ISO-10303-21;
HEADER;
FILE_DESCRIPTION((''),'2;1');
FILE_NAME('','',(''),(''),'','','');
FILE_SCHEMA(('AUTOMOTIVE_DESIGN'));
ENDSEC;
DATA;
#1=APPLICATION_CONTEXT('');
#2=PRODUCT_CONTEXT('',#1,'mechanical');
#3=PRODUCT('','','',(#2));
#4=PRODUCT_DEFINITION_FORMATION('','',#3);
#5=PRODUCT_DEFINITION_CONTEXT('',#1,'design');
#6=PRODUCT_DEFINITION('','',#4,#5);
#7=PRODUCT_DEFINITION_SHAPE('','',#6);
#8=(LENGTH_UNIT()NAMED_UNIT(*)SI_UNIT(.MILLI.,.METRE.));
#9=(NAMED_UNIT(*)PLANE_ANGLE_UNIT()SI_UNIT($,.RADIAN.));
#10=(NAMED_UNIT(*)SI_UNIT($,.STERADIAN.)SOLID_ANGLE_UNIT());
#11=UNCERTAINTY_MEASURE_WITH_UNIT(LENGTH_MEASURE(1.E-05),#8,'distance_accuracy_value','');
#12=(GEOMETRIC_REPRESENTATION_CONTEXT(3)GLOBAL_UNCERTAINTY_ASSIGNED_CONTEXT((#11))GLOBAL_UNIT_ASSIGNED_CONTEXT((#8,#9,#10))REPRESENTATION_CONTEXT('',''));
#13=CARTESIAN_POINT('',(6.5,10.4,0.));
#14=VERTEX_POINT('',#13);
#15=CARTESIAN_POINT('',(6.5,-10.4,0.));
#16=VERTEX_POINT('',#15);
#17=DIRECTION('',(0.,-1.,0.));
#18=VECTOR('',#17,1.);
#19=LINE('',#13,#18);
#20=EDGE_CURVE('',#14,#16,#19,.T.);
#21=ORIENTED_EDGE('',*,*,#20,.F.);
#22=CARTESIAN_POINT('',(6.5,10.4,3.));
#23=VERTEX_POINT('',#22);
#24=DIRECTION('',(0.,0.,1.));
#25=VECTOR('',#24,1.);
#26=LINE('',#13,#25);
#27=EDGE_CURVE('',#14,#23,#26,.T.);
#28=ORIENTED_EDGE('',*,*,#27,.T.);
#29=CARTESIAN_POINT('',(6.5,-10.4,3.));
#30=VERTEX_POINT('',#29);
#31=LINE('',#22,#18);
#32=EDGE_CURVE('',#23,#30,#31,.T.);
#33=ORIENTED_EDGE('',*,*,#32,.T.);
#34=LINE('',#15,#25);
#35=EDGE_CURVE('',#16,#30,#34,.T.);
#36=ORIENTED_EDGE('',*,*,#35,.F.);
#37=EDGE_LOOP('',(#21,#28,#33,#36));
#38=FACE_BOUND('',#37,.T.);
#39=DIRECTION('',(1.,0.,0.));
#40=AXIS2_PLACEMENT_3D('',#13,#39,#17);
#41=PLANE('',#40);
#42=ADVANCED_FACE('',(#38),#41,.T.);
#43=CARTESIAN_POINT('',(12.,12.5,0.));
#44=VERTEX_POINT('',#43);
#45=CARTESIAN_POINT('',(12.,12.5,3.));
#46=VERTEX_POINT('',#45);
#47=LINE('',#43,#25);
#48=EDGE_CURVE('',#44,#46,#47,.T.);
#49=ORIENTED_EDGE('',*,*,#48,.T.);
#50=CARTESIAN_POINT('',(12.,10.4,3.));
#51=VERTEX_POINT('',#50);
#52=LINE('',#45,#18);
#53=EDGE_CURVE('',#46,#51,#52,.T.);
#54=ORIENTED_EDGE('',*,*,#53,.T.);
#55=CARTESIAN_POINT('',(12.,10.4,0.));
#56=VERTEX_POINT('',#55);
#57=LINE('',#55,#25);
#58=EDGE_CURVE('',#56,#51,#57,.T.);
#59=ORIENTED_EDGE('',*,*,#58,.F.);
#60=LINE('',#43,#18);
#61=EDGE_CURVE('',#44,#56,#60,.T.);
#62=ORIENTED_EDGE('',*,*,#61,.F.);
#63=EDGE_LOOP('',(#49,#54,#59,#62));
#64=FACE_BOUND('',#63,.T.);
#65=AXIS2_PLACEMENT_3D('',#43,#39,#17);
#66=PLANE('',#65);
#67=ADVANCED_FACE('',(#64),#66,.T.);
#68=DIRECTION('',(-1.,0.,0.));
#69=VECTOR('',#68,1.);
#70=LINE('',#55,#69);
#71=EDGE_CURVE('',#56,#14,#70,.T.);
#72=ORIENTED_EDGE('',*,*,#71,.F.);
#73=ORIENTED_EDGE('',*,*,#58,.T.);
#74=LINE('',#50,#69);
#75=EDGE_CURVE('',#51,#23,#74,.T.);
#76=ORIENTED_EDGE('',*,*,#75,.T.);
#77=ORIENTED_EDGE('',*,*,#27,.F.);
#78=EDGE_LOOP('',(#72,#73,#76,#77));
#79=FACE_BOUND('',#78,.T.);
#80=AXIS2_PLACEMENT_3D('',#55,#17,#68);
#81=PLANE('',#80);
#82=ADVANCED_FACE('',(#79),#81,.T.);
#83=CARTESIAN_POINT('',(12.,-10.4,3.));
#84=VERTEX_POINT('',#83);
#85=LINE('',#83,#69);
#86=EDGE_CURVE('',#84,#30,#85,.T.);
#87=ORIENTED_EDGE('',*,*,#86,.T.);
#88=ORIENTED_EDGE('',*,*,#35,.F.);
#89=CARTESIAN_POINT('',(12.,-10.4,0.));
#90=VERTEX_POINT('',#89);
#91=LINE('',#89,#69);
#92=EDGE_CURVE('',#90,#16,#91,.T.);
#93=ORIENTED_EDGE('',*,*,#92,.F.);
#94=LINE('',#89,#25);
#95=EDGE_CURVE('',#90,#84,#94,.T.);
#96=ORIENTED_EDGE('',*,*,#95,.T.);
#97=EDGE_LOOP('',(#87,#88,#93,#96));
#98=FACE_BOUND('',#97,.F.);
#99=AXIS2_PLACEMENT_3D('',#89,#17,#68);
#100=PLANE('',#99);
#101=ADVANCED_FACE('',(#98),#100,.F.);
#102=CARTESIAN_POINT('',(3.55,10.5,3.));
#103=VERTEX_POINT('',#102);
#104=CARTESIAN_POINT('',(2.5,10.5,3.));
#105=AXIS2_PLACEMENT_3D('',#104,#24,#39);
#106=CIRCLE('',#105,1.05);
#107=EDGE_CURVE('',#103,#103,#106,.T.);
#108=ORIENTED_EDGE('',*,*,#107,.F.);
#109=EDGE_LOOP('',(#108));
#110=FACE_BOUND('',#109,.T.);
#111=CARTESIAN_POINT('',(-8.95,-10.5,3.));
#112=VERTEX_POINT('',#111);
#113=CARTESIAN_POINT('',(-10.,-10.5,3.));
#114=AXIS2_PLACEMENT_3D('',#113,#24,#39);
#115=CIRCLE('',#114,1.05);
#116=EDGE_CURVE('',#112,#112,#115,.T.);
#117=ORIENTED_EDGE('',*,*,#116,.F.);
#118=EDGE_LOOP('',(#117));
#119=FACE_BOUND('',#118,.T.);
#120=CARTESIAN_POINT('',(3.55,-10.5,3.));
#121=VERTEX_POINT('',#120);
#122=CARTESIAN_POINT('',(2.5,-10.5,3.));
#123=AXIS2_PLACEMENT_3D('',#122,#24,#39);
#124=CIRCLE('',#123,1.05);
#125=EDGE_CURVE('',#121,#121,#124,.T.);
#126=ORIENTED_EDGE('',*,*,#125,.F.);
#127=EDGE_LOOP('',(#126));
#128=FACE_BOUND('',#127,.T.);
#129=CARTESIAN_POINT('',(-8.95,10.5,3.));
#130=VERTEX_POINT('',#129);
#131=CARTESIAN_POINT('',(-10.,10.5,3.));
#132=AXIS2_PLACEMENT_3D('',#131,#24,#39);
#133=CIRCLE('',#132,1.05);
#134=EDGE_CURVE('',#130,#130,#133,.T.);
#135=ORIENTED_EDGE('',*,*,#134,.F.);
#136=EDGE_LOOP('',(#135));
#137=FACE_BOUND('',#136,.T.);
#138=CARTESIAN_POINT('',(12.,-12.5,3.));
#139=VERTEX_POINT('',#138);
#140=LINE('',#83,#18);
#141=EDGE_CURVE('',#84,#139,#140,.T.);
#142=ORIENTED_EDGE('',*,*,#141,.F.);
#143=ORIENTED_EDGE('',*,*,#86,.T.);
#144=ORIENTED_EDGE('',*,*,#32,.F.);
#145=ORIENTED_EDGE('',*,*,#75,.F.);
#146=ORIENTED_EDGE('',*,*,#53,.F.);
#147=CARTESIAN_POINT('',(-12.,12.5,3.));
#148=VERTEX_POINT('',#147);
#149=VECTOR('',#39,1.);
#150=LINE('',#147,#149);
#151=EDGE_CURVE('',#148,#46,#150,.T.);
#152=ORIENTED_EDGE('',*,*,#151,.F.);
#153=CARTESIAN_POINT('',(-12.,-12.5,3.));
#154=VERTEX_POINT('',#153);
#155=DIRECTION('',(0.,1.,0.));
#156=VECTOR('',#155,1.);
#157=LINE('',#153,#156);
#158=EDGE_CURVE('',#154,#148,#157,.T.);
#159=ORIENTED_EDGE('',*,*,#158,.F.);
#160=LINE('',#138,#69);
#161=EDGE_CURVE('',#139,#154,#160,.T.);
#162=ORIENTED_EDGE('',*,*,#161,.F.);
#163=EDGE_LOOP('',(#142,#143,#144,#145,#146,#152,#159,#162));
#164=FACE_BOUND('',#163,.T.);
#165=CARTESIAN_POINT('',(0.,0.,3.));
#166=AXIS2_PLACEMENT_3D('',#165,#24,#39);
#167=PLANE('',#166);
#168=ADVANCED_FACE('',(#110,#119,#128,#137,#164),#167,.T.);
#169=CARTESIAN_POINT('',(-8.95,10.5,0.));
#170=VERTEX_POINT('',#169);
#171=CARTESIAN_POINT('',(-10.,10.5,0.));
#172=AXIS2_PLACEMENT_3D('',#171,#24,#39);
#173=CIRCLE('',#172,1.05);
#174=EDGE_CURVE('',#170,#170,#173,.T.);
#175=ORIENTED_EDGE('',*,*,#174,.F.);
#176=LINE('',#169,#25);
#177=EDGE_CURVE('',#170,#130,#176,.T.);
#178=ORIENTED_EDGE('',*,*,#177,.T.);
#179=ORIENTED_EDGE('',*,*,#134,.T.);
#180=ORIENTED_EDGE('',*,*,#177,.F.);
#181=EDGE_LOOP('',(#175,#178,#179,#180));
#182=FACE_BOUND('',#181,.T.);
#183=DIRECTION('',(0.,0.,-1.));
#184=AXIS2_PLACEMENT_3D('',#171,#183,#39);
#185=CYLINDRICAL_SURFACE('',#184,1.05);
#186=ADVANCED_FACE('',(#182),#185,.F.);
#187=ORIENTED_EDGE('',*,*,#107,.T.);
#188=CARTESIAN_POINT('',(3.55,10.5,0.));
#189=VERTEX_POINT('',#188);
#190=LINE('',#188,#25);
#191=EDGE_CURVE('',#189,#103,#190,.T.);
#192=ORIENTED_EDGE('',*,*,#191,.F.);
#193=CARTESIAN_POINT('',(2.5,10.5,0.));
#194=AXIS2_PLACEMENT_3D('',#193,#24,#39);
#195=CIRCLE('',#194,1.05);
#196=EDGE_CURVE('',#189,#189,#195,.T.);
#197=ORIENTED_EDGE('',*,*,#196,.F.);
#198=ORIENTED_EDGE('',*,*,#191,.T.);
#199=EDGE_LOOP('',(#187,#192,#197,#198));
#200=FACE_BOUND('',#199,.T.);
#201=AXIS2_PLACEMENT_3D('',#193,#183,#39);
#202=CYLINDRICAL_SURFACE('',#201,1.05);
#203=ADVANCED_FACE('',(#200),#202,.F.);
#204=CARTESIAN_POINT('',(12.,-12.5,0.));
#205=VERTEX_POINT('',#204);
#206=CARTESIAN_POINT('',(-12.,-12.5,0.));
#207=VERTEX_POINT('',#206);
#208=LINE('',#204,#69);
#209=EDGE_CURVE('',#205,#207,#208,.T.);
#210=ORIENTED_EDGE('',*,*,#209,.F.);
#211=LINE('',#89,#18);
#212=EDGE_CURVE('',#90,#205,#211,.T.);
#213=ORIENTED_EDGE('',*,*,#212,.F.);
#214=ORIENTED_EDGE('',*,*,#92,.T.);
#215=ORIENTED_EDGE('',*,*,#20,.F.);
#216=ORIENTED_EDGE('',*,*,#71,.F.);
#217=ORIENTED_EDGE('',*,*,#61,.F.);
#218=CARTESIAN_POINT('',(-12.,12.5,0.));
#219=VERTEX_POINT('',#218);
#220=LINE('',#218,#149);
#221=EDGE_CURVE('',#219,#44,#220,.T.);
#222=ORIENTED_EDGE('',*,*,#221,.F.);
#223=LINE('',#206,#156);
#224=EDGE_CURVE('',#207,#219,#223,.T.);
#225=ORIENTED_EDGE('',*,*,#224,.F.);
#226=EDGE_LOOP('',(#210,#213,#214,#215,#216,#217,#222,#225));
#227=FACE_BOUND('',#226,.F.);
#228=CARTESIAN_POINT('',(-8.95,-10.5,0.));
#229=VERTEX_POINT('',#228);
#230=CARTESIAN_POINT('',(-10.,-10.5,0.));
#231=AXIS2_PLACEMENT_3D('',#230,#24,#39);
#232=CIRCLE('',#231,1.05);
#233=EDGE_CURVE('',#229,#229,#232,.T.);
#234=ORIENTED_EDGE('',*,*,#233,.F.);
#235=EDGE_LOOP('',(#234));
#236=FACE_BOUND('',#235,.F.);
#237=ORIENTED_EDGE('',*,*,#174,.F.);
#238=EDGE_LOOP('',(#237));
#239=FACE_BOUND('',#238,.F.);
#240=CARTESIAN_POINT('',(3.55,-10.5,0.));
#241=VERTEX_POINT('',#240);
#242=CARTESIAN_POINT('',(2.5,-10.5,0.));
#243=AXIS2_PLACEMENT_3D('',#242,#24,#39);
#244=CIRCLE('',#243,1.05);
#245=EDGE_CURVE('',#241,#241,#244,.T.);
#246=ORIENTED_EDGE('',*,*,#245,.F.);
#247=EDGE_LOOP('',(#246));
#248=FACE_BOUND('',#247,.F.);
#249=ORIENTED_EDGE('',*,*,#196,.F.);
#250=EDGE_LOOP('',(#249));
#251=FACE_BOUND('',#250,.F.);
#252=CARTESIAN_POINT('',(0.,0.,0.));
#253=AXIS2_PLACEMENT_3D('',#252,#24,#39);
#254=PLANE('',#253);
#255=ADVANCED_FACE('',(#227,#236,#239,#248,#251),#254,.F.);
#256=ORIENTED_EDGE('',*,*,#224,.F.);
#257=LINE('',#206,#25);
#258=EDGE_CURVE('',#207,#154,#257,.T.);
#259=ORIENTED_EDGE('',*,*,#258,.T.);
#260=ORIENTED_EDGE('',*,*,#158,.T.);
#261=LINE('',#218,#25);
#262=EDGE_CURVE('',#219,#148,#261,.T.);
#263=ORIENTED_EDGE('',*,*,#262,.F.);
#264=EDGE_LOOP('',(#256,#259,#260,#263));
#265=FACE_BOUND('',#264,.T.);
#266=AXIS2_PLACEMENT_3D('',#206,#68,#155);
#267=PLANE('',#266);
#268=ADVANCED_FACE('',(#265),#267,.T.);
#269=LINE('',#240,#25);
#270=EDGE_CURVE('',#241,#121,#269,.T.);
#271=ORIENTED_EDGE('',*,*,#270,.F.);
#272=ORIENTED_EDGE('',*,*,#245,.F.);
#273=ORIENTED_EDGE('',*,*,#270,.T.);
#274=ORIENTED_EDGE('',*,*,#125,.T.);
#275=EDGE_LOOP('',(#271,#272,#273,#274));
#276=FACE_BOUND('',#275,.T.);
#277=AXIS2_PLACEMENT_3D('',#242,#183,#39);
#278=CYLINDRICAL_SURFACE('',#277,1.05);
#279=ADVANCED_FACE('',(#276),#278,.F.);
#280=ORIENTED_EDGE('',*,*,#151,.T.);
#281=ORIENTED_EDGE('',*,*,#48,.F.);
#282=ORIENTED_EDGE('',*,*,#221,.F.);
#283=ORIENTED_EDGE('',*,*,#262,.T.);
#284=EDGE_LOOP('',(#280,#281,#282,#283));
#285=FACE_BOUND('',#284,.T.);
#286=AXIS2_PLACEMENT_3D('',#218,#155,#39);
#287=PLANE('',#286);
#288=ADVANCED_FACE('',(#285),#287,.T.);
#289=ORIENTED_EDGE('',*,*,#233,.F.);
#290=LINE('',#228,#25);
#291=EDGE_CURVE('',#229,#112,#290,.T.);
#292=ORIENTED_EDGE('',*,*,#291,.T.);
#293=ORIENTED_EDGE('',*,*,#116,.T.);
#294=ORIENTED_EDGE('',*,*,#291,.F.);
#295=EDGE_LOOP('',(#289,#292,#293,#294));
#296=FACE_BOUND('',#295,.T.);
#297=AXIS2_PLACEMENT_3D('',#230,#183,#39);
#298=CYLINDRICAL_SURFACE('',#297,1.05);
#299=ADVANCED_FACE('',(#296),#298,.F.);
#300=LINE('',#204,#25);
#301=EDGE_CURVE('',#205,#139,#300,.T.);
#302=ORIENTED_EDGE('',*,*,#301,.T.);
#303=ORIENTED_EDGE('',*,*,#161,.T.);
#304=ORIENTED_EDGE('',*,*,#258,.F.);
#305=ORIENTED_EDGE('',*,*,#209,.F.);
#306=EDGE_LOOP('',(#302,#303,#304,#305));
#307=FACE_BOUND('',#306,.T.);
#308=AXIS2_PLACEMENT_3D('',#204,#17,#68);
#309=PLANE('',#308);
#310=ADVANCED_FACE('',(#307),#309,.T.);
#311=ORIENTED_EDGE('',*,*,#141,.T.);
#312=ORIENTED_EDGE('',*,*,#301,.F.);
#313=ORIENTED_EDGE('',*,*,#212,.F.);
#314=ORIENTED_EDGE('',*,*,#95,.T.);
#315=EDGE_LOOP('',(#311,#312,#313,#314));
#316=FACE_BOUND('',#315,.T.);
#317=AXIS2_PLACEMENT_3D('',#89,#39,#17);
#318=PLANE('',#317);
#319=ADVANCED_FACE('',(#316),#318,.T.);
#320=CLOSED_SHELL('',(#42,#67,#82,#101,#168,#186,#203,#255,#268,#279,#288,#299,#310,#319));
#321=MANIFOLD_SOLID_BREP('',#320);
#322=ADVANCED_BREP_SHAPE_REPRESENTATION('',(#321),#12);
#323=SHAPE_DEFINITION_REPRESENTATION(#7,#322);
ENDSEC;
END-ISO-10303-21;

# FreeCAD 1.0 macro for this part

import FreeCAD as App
import Part
import Sketcher


def add_polygon(sketch, points):
    """Adds a closed chain of lines whose ends are joined by coincident constraints."""
    first, n = sketch.GeometryCount, len(points)
    for a, b in zip(points, points[1:] + points[:1]):
        sketch.addGeometry(Part.LineSegment(App.Vector(*a, 0), App.Vector(*b, 0)), False)
    for i in range(n):
        sketch.addConstraint(Sketcher.Constraint("Coincident", first + i, 2, first + (i + 1) % n, 1))

doc = App.newDocument("Part")
body = doc.addObject("PartDesign::Body", "Body")

# Sketch on XY plane
sketch1 = doc.addObject("Sketcher::SketchObject", "Sketch")
body.addObject(sketch1)
sketch1.AttachmentSupport = (doc.XY_Plane, [""])
sketch1.MapMode = "FlatFace"
add_polygon(sketch1, [(12, 12.5), (-12, 12.5), (-12, -12.5), (12, -12.5), (12, -10.4), (6.5, -10.4), (6.5, 10.4), (12, 10.4)])  # lines 0-7
sketch1.addGeometry(Part.Circle(App.Vector(-10, -10.5, 0), App.Vector(0, 0, 1), 1.1), False)  # 8
sketch1.addGeometry(Part.Circle(App.Vector(2.5, -10.5, 0), App.Vector(0, 0, 1), 1.1), False)  # 9
sketch1.addGeometry(Part.Circle(App.Vector(-10, 10.5, 0), App.Vector(0, 0, 1), 1.1), False)  # 10
sketch1.addGeometry(Part.Circle(App.Vector(2.5, 10.5, 0), App.Vector(0, 0, 1), 1.1), False)  # 11
sketch1.addConstraint([
    Sketcher.Constraint("Horizontal", 0),
    Sketcher.Constraint("Vertical", 1),
    Sketcher.Constraint("Horizontal", 2),
    Sketcher.Constraint("Vertical", 3),
    Sketcher.Constraint("Horizontal", 4),
    Sketcher.Constraint("Vertical", 5),
    Sketcher.Constraint("Horizontal", 6),
    Sketcher.Constraint("Vertical", 7),
    Sketcher.Constraint("Equal", 8, 9),
    Sketcher.Constraint("Equal", 9, 10),
    Sketcher.Constraint("Equal", 10, 11),
    Sketcher.Constraint("Symmetric", 0, 2, 2, 2, -1, 1),
    Sketcher.Constraint("Symmetric", 8, 3, 10, 3, -1),
    Sketcher.Constraint("Symmetric", 9, 3, 11, 3, -1),
    Sketcher.Constraint("Symmetric", 3, 2, 6, 2, -1),
    Sketcher.Constraint("Horizontal", 8, 3, 9, 3),
    Sketcher.Constraint("Diameter", 8, 2.1),
    Sketcher.Constraint("DistanceX", 0, 2, 0, 1, 24.0),
    Sketcher.Constraint("DistanceY", 1, 2, 1, 1, 25.0),
    Sketcher.Constraint("DistanceX", 4, 2, 4, 1, 5.5),
    Sketcher.Constraint("DistanceY", 3, 1, 3, 2, 2.1),
    Sketcher.Constraint("DistanceX", 0, 2, 10, 3, 2.0),
    Sketcher.Constraint("DistanceY", 10, 3, 0, 2, 2.0),
    Sketcher.Constraint("DistanceX", 9, 3, 2, 2, 9.5),
])
pad1 = doc.addObject("PartDesign::Pad", "Pad")
body.addObject(pad1)
pad1.Profile = sketch1
pad1.Length = 3

doc.recompute()
